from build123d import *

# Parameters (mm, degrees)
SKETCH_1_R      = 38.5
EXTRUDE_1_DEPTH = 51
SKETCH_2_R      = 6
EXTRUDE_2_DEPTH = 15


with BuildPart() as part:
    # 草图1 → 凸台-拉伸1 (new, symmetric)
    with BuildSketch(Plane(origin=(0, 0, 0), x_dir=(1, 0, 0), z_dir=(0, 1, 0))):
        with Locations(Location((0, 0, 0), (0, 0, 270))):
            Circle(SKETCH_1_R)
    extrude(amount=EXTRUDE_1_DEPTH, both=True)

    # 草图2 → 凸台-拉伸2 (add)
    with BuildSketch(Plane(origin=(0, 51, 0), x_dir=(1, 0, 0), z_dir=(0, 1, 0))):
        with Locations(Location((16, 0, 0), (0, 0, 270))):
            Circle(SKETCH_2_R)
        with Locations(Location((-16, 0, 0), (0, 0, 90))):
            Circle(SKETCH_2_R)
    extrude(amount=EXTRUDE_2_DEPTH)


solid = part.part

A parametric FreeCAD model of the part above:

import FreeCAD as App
import Part
import Sketcher
from FreeCAD import Vector
Q = App.Units.Quantity

doc = App.newDocument("Part")
params = doc.addObject("Spreadsheet::Sheet", "Params")
for row, (alias, value) in enumerate([
    ("sketch1_diameter", "77 mm"),
    ("pad1_length", "102 mm"),
    ("sketch2_diameter", "12 mm"),
    ("pad2_length", "15 mm"),
], start=1):
    params.set(f"A{row}", alias)
    params.set(f"B{row}", "=" + value)
    params.setAlias(f"B{row}", alias)

body = doc.addObject("PartDesign::Body", "Body")

# Sketch on XZ plane
sketch1 = body.newObject("Sketcher::SketchObject", "Sketch")
sketch1.AttachmentSupport = (doc.getObject("XZ_Plane"), [""])
sketch1.MapMode = "FlatFace"
sketch1.addGeometry(Part.Circle(Vector(0, 0, 0), Vector(0, 0, 1), 38), False)
sketch1.addConstraint([
    Sketcher.Constraint("Coincident", 0, 3, -1, 1),
    Sketcher.Constraint("Diameter", 0, Q("77 mm")),
])
sketch1.setExpression("Constraints[1]", "Params.sketch1_diameter")
pad1 = body.newObject("PartDesign::Pad", "Pad")
pad1.Profile = sketch1
pad1.setExpression("Length", "Params.pad1_length")
pad1.Midplane = True

# Sketch on XZ plane
sketch2 = body.newObject("Sketcher::SketchObject", "Sketch001")
sketch2.AttachmentSupport = (doc.getObject("XZ_Plane"), [""])
sketch2.MapMode = "FlatFace"
sketch2.AttachmentOffset = App.Placement(Vector(0, 0, -51), App.Rotation())
sketch2.addGeometry([
    Part.Circle(Vector(16, 0, 0), Vector(0, 0, 1), 6),
    Part.Circle(Vector(-16, 0, 0), Vector(0, 0, 1), 6),
], False)
sketch2.addConstraint([
    Sketcher.Constraint("Equal", 0, 1),
    Sketcher.Constraint("Symmetric", 0, 3, 1, 3, -1, 1),
    Sketcher.Constraint("PointOnObject", 0, 3, -1),
    Sketcher.Constraint("Diameter", 0, Q("12 mm")),
    Sketcher.Constraint("DistanceX", -1, 1, 0, 3, Q("16 mm")),
])
sketch2.setExpression("Constraints[3]", "Params.sketch2_diameter")
pad2 = body.newObject("PartDesign::Pad", "Pad001")
pad2.Profile = sketch2
pad2.setExpression("Length", "Params.pad2_length")
pad2.Reversed = True

doc.recompute()
